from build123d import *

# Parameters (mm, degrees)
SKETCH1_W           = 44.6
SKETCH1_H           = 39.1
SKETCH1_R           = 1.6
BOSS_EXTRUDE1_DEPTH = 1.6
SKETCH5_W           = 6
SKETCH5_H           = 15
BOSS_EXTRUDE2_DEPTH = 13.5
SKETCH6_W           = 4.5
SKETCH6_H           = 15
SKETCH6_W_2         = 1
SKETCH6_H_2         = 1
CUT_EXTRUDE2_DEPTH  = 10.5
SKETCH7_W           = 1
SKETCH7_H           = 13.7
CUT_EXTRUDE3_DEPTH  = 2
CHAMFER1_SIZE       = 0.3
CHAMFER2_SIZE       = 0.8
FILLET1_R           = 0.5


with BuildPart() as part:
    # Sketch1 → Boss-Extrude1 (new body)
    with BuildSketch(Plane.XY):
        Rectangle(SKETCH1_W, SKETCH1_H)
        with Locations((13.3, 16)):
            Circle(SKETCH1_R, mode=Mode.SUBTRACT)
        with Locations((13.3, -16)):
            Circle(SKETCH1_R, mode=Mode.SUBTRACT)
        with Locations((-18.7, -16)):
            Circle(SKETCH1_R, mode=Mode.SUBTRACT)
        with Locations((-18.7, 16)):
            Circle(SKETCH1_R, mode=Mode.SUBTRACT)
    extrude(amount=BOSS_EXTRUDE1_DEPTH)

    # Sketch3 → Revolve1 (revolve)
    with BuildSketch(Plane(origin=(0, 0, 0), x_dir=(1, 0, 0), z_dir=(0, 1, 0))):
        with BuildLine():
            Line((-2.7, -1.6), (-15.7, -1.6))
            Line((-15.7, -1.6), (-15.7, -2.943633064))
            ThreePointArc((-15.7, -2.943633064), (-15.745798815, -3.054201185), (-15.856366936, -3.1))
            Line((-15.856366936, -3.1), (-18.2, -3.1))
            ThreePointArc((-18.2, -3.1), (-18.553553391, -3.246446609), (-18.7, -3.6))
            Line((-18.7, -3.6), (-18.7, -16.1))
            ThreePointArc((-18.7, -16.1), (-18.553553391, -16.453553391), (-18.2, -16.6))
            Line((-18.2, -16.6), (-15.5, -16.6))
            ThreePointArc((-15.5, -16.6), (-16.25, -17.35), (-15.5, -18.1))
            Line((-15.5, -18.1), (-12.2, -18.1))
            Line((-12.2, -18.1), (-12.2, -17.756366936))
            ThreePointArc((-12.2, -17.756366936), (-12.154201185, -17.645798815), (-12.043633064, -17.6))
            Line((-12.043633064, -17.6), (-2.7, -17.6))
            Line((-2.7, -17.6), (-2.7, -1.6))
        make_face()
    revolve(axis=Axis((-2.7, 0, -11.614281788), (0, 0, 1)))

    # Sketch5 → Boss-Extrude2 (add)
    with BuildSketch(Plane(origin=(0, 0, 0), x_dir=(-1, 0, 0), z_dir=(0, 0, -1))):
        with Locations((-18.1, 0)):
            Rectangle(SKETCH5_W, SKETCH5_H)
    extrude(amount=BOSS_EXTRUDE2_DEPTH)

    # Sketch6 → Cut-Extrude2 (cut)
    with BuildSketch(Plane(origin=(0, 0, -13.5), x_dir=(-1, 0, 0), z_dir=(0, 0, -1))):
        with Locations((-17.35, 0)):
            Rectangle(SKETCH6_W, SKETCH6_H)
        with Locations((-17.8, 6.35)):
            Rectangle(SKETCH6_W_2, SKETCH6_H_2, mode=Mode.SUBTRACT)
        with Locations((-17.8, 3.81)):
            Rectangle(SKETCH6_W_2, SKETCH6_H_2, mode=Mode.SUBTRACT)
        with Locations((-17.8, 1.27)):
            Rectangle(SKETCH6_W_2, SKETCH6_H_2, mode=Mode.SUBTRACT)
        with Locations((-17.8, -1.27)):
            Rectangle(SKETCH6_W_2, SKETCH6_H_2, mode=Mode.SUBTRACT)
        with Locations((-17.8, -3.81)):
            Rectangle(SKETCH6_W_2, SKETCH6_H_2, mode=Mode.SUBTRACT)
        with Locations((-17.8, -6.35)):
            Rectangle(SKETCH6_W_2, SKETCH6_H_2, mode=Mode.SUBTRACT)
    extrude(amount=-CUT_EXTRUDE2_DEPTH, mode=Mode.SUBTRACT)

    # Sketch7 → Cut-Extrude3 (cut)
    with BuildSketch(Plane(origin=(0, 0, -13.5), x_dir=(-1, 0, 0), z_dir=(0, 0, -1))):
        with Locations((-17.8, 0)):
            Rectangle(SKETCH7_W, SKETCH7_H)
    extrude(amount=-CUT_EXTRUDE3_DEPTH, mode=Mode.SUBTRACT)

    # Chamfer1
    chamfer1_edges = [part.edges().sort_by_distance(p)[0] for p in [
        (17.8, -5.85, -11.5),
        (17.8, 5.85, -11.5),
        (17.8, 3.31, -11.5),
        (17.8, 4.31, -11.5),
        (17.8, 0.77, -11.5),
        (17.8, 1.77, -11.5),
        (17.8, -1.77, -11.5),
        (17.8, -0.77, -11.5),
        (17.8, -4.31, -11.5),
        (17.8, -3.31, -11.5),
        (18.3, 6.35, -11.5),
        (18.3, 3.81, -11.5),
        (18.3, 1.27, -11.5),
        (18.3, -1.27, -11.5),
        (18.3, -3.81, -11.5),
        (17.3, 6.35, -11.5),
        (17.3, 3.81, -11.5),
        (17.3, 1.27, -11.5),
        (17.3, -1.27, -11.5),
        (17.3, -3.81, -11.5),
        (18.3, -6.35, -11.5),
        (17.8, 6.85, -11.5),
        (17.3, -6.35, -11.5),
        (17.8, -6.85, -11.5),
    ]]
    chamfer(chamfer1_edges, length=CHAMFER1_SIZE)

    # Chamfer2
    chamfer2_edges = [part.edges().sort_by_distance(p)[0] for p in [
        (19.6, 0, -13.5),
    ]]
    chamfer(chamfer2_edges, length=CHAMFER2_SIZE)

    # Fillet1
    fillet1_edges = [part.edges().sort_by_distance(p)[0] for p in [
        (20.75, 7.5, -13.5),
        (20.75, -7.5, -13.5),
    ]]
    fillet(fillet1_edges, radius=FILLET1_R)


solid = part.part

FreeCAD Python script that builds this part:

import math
import FreeCAD as App
import Part
import Sketcher
from FreeCAD import Vector
Q = App.Units.Quantity


def edges_at(feature, points):
    """Names of the edges that pass closest to the given points."""
    edges = feature.Shape.Edges
    near = lambda p: min(range(len(edges)), key=lambda i: edges[i].distToShape(Part.Vertex(*p))[0])
    return sorted({f"Edge{near(p) + 1}" for p in points})

doc = App.newDocument("Part")
body = doc.addObject("PartDesign::Body", "Body")

sketch1 = body.newObject("Sketcher::SketchObject", "Sketch")
sketch1.AttachmentSupport = (doc.getObject("XY_Plane"), [""])
sketch1.MapMode = "FlatFace"
sketch1.addGeometry([
    Part.LineSegment(Vector(-22.3, 19.6, 0), Vector(-22.3, -19.6, 0)),
    Part.LineSegment(Vector(-22.3, -19.6, 0), Vector(22.3, -19.6, 0)),
    Part.LineSegment(Vector(22.3, -19.6, 0), Vector(22.3, 19.6, 0)),
    Part.LineSegment(Vector(22.3, 19.6, 0), Vector(-22.3, 19.6, 0)),
    Part.Circle(Vector(-18.7, -16, 0), Vector(0, 0, 1), 1.6),
    Part.Circle(Vector(13.3, -16, 0), Vector(0, 0, 1), 1.6),
    Part.Circle(Vector(-18.7, 16, 0), Vector(0, 0, 1), 1.6),
    Part.Circle(Vector(13.3, 16, 0), Vector(0, 0, 1), 1.6),
], False)
sketch1.addConstraint([
    Sketcher.Constraint("Coincident", 0, 2, 1, 1),
    Sketcher.Constraint("Coincident", 1, 2, 2, 1),
    Sketcher.Constraint("Coincident", 2, 2, 3, 1),
    Sketcher.Constraint("Coincident", 3, 2, 0, 1),
    Sketcher.Constraint("Vertical", 0),
    Sketcher.Constraint("Horizontal", 1),
    Sketcher.Constraint("Vertical", 2),
    Sketcher.Constraint("Horizontal", 3),
    Sketcher.Constraint("Equal", 4, 5),
    Sketcher.Constraint("Equal", 5, 6),
    Sketcher.Constraint("Equal", 6, 7),
    Sketcher.Constraint("Symmetric", 0, 2, 2, 2, -1, 1),
    Sketcher.Constraint("Symmetric", 4, 3, 6, 3, -1),
    Sketcher.Constraint("Symmetric", 5, 3, 7, 3, -1),
    Sketcher.Constraint("Horizontal", 4, 3, 5, 3),
    Sketcher.Constraint("Diameter", 4, Q("3.2 mm")),
    Sketcher.Constraint("DistanceX", 1, 1, 1, 2, Q("44.6 mm")),
    Sketcher.Constraint("DistanceY", 0, 2, 0, 1, Q("39.1 mm")),
    Sketcher.Constraint("DistanceY", 4, 3, -1, 1, Q("16 mm")),
    Sketcher.Constraint("DistanceX", 4, 3, 5, 3, Q("32 mm")),
    Sketcher.Constraint("DistanceX", 5, 3, 1, 2, Q("9 mm")),
])
pad1 = body.newObject("PartDesign::Pad", "Pad")
pad1.Profile = sketch1
pad1.Length = 1.6

sketch2 = body.newObject("Sketcher::SketchObject", "Sketch001")
sketch2.AttachmentSupport = (doc.getObject("XZ_Plane"), [""])
sketch2.MapMode = "FlatFace"
sketch2.addGeometry([
    Part.LineSegment(Vector(-2.7, 1.6, 0), Vector(-15.7, 1.6, 0)),
    Part.LineSegment(Vector(-15.7, 1.6, 0), Vector(-15.7, 2.94, 0)),
    Part.ArcOfCircle(Part.Circle(Vector(-15.86, 2.94, 0), Vector(0, 0, 1), 0.16), math.radians(0), math.radians(90)),
    Part.LineSegment(Vector(-15.86, 3.1, 0), Vector(-18.2, 3.1, 0)),
    Part.ArcOfCircle(Part.Circle(Vector(-18.2, 3.6, 0), Vector(0, 0, 1), 0.5), math.radians(180), math.radians(270)),
    Part.LineSegment(Vector(-18.7, 3.6, 0), Vector(-18.7, 16.1, 0)),
    Part.ArcOfCircle(Part.Circle(Vector(-18.2, 16.1, 0), Vector(0, 0, 1), 0.5), math.radians(90), math.radians(180)),
    Part.LineSegment(Vector(-18.2, 16.6, 0), Vector(-15.5, 16.6, 0)),
    Part.ArcOfCircle(Part.Circle(Vector(-15.5, 17.35, 0), Vector(0, 0, 1), 0.75), math.radians(90), math.radians(270)),
    Part.LineSegment(Vector(-15.5, 18.1, 0), Vector(-12.2, 18.1, 0)),
    Part.LineSegment(Vector(-12.2, 18.1, 0), Vector(-12.2, 17.76, 0)),
    Part.ArcOfCircle(Part.Circle(Vector(-12.04, 17.76, 0), Vector(0, 0, 1), 0.16), math.radians(180), math.radians(270)),
    Part.LineSegment(Vector(-12.04, 17.6, 0), Vector(-2.7, 17.6, 0)),
    Part.LineSegment(Vector(-2.7, 17.6, 0), Vector(-2.7, 1.6, 0)),
], False)
sketch2.addGeometry(Part.LineSegment(Vector(-2.7, 1.6, 0), Vector(-2.7, 18.1, 0)), True)
sketch2.addConstraint([
    Sketcher.Constraint("Coincident", 0, 2, 1, 1),
    Sketcher.Constraint("Tangent", 1, 2, 2, 1),
    Sketcher.Constraint("Tangent", 2, 2, 3, 1),
    Sketcher.Constraint("Tangent", 3, 2, 4, 2),
    Sketcher.Constraint("Tangent", 4, 1, 5, 1),
    Sketcher.Constraint("Tangent", 5, 2, 6, 2),
    Sketcher.Constraint("Tangent", 6, 1, 7, 1),
    Sketcher.Constraint("Tangent", 7, 2, 8, 2),
    Sketcher.Constraint("Tangent", 8, 1, 9, 1),
    Sketcher.Constraint("Coincident", 9, 2, 10, 1),
    Sketcher.Constraint("Tangent", 10, 2, 11, 1),
    Sketcher.Constraint("Tangent", 11, 2, 12, 1),
    Sketcher.Constraint("Coincident", 12, 2, 13, 1),
    Sketcher.Constraint("Coincident", 13, 2, 0, 1),
    Sketcher.Constraint("Horizontal", 0),
    Sketcher.Constraint("Vertical", 1),
    Sketcher.Constraint("Horizontal", 3),
    Sketcher.Constraint("Vertical", 5),
    Sketcher.Constraint("Horizontal", 7),
    Sketcher.Constraint("Horizontal", 9),
    Sketcher.Constraint("Vertical", 10),
    Sketcher.Constraint("Horizontal", 12),
    Sketcher.Constraint("Vertical", 13),
    Sketcher.Constraint("Vertical", 14),
    Sketcher.Constraint("Coincident", 14, 1, 13, 2),
    Sketcher.Constraint("Equal", 4, 6),
    Sketcher.Constraint("Equal", 2, 11),
    Sketcher.Constraint("Horizontal", 9, 2, 14, 2),
    Sketcher.Constraint("Radius", 4, Q("0.5 mm")),
    Sketcher.Constraint("DistanceX", 0, 2, 0, 1, Q("13 mm")),
    Sketcher.Constraint("DistanceY", 13, 2, 13, 1, Q("16 mm")),
    Sketcher.Constraint("Radius", 8, Q("0.75 mm")),
    Sketcher.Constraint("DistanceX", 7, 1, 7, 2, Q("2.7 mm")),
    Sketcher.Constraint("DistanceX", 9, 1, 9, 2, Q("3.3 mm")),
    Sketcher.Constraint("DistanceY", 5, 1, 5, 2, Q("12.5 mm")),
    Sketcher.Constraint("DistanceY", 14, 1, 14, 2, Q("16.5 mm")),
    Sketcher.Constraint("DistanceX", 4, 1, 1, 2, Q("3 mm")),
    Sketcher.Constraint("DistanceX", 4, 3, -1, 1, Q("18.2 mm")),
    Sketcher.Constraint("DistanceY", -1, 1, 4, 3, Q("3.6 mm")),
    Sketcher.Constraint("Radius", 2, Q("0.156367 mm")),
])
revolution = body.newObject("PartDesign::Revolution", "Revolution")
revolution.Profile = sketch2
revolution.ReferenceAxis = (sketch2, ["Axis0"])
revolution.Angle = 360

sketch3 = body.newObject("Sketcher::SketchObject", "Sketch002")
sketch3.AttachmentSupport = (doc.getObject("XY_Plane"), [""])
sketch3.MapMode = "FlatFace"
sketch3.addGeometry([
    Part.LineSegment(Vector(21, 8, 0), Vector(21, -8, 0)),
    Part.LineSegment(Vector(21, -8, 0), Vector(15, -8, 0)),
    Part.LineSegment(Vector(15, -8, 0), Vector(15, 8, 0)),
    Part.LineSegment(Vector(15, 8, 0), Vector(21, 8, 0)),
], False)
sketch3.addConstraint([
    Sketcher.Constraint("Coincident", 0, 2, 1, 1),
    Sketcher.Constraint("Coincident", 1, 2, 2, 1),
    Sketcher.Constraint("Coincident", 2, 2, 3, 1),
    Sketcher.Constraint("Coincident", 3, 2, 0, 1),
    Sketcher.Constraint("Vertical", 0),
    Sketcher.Constraint("Horizontal", 1),
    Sketcher.Constraint("Vertical", 2),
    Sketcher.Constraint("Horizontal", 3),
    Sketcher.Constraint("DistanceX", 1, 2, 1, 1, Q("6 mm")),
    Sketcher.Constraint("DistanceY", 0, 2, 0, 1, Q("15 mm")),
    Sketcher.Constraint("DistanceX", -1, 1, 0, 2, Q("21.1 mm")),
    Sketcher.Constraint("DistanceY", 0, 2, -1, 1, Q("7.5 mm")),
])
pad2 = body.newObject("PartDesign::Pad", "Pad001")
pad2.Profile = sketch3
pad2.Length = 13.5
pad2.Reversed = True

sketch4 = body.newObject("Sketcher::SketchObject", "Sketch003")
sketch4.AttachmentSupport = (doc.getObject("XY_Plane"), [""])
sketch4.MapMode = "FlatFace"
sketch4.AttachmentOffset = App.Placement(Vector(0, 0, -13.5), App.Rotation())
sketch4.addGeometry([
    Part.LineSegment(Vector(19.6, 7.5, 0), Vector(19.6, -7.5, 0)),
    Part.LineSegment(Vector(19.6, -7.5, 0), Vector(15.1, -7.5, 0)),
    Part.LineSegment(Vector(15.1, -7.5, 0), Vector(15.1, 7.5, 0)),
    Part.LineSegment(Vector(15.1, 7.5, 0), Vector(19.6, 7.5, 0)),
    Part.LineSegment(Vector(17.3, -6.8, 0), Vector(18.3, -6.8, 0)),
    Part.LineSegment(Vector(18.3, -6.8, 0), Vector(18.3, -5.8, 0)),
    Part.LineSegment(Vector(18.3, -5.8, 0), Vector(17.3, -5.8, 0)),
    Part.LineSegment(Vector(17.3, -5.8, 0), Vector(17.3, -6.8, 0)),
    Part.LineSegment(Vector(17.3, -4.3, 0), Vector(18.3, -4.3, 0)),
    Part.LineSegment(Vector(18.3, -4.3, 0), Vector(18.3, -3.3, 0)),
    Part.LineSegment(Vector(18.3, -3.3, 0), Vector(17.3, -3.3, 0)),
    Part.LineSegment(Vector(17.3, -3.3, 0), Vector(17.3, -4.3, 0)),
    Part.LineSegment(Vector(17.3, -1.8, 0), Vector(18.3, -1.8, 0)),
    Part.LineSegment(Vector(18.3, -1.8, 0), Vector(18.3, -0.8, 0)),
    Part.LineSegment(Vector(18.3, -0.8, 0), Vector(17.3, -0.8, 0)),
    Part.LineSegment(Vector(17.3, -0.8, 0), Vector(17.3, -1.8, 0)),
    Part.LineSegment(Vector(17.3, 0.8, 0), Vector(18.3, 0.8, 0)),
    Part.LineSegment(Vector(18.3, 0.8, 0), Vector(18.3, 1.8, 0)),
    Part.LineSegment(Vector(18.3, 1.8, 0), Vector(17.3, 1.8, 0)),
    Part.LineSegment(Vector(17.3, 1.8, 0), Vector(17.3, 0.8, 0)),
    Part.LineSegment(Vector(17.3, 3.3, 0), Vector(18.3, 3.3, 0)),
    Part.LineSegment(Vector(18.3, 3.3, 0), Vector(18.3, 4.3, 0)),
    Part.LineSegment(Vector(18.3, 4.3, 0), Vector(17.3, 4.3, 0)),
    Part.LineSegment(Vector(17.3, 4.3, 0), Vector(17.3, 3.3, 0)),
    Part.LineSegment(Vector(17.3, 5.8, 0), Vector(18.3, 5.8, 0)),
    Part.LineSegment(Vector(18.3, 5.8, 0), Vector(18.3, 6.8, 0)),
    Part.LineSegment(Vector(18.3, 6.8, 0), Vector(17.3, 6.8, 0)),
    Part.LineSegment(Vector(17.3, 6.8, 0), Vector(17.3, 5.8, 0)),
], False)
sketch4.addConstraint([
    Sketcher.Constraint("Coincident", 0, 2, 1, 1),
    Sketcher.Constraint("Coincident", 1, 2, 2, 1),
    Sketcher.Constraint("Coincident", 2, 2, 3, 1),
    Sketcher.Constraint("Coincident", 3, 2, 0, 1),
    Sketcher.Constraint("Coincident", 4, 2, 5, 1),
    Sketcher.Constraint("Coincident", 5, 2, 6, 1),
    Sketcher.Constraint("Coincident", 6, 2, 7, 1),
    Sketcher.Constraint("Coincident", 7, 2, 4, 1),
    Sketcher.Constraint("Coincident", 8, 2, 9, 1),
    Sketcher.Constraint("Coincident", 9, 2, 10, 1),
    Sketcher.Constraint("Coincident", 10, 2, 11, 1),
    Sketcher.Constraint("Coincident", 11, 2, 8, 1),
    Sketcher.Constraint("Coincident", 12, 2, 13, 1),
    Sketcher.Constraint("Coincident", 13, 2, 14, 1),
    Sketcher.Constraint("Coincident", 14, 2, 15, 1),
    Sketcher.Constraint("Coincident", 15, 2, 12, 1),
    Sketcher.Constraint("Coincident", 16, 2, 17, 1),
    Sketcher.Constraint("Coincident", 17, 2, 18, 1),
    Sketcher.Constraint("Coincident", 18, 2, 19, 1),
    Sketcher.Constraint("Coincident", 19, 2, 16, 1),
    Sketcher.Constraint("Coincident", 20, 2, 21, 1),
    Sketcher.Constraint("Coincident", 21, 2, 22, 1),
    Sketcher.Constraint("Coincident", 22, 2, 23, 1),
    Sketcher.Constraint("Coincident", 23, 2, 20, 1),
    Sketcher.Constraint("Coincident", 24, 2, 25, 1),
    Sketcher.Constraint("Coincident", 25, 2, 26, 1),
    Sketcher.Constraint("Coincident", 26, 2, 27, 1),
    Sketcher.Constraint("Coincident", 27, 2, 24, 1),
    Sketcher.Constraint("Vertical", 0),
    Sketcher.Constraint("Horizontal", 1),
    Sketcher.Constraint("Vertical", 2),
    Sketcher.Constraint("Horizontal", 3),
    Sketcher.Constraint("Horizontal", 4),
    Sketcher.Constraint("Vertical", 5),
    Sketcher.Constraint("Horizontal", 6),
    Sketcher.Constraint("Vertical", 7),
    Sketcher.Constraint("Horizontal", 8),
    Sketcher.Constraint("Vertical", 9),
    Sketcher.Constraint("Horizontal", 10),
    Sketcher.Constraint("Vertical", 11),
    Sketcher.Constraint("Horizontal", 12),
    Sketcher.Constraint("Vertical", 13),
    Sketcher.Constraint("Horizontal", 14),
    Sketcher.Constraint("Vertical", 15),
    Sketcher.Constraint("Horizontal", 16),
    Sketcher.Constraint("Vertical", 17),
    Sketcher.Constraint("Horizontal", 18),
    Sketcher.Constraint("Vertical", 19),
    Sketcher.Constraint("Horizontal", 20),
    Sketcher.Constraint("Vertical", 21),
    Sketcher.Constraint("Horizontal", 22),
    Sketcher.Constraint("Vertical", 23),
    Sketcher.Constraint("Horizontal", 24),
    Sketcher.Constraint("Vertical", 25),
    Sketcher.Constraint("Horizontal", 26),
    Sketcher.Constraint("Vertical", 27),
    Sketcher.Constraint("Symmetric", 13, 2, 16, 2, -1),
    Sketcher.Constraint("Symmetric", 15, 2, 18, 2, -1),
    Sketcher.Constraint("Symmetric", 9, 2, 20, 2, -1),
    Sketcher.Constraint("Symmetric", 11, 2, 22, 2, -1),
    Sketcher.Constraint("Symmetric", 5, 2, 24, 2, -1),
    Sketcher.Constraint("Symmetric", 7, 2, 26, 2, -1),
    Sketcher.Constraint("Vertical", 5, 2, 8, 2),
    Sketcher.Constraint("Vertical", 7, 2, 10, 2),
    Sketcher.Constraint("Vertical", 9, 2, 12, 2),
    Sketcher.Constraint("Vertical", 11, 2, 14, 2),
    Sketcher.Constraint("Equal", 26, 5),
    Sketcher.Constraint("Equal", 7, 9),
    Sketcher.Constraint("Equal", 11, 13),
    Sketcher.Constraint("DistanceX", 4, 1, 4, 2, Q("1 mm")),
    Sketcher.Constraint("DistanceY", 0, 2, 0, 1, Q("15 mm")),
    Sketcher.Constraint("DistanceX", 1, 2, 1, 1, Q("4.5 mm")),
    Sketcher.Constraint("DistanceX", -1, 1, 0, 2, Q("19.6 mm")),
    Sketcher.Constraint("DistanceY", 0, 2, -1, 1, Q("7.5 mm")),
    Sketcher.Constraint("DistanceX", -1, 1, 4, 2, Q("18.3 mm")),
    Sketcher.Constraint("DistanceY", 4, 2, -1, 1, Q("6.85 mm")),
    Sketcher.Constraint("DistanceY", 8, 2, -1, 1, Q("4.31 mm")),
    Sketcher.Constraint("DistanceY", 12, 2, -1, 1, Q("1.77 mm")),
])
pocket1 = body.newObject("PartDesign::Pocket", "Pocket")
pocket1.Profile = sketch4
pocket1.Length = 10.5
pocket1.Reversed = True

sketch5 = body.newObject("Sketcher::SketchObject", "Sketch004")
sketch5.AttachmentSupport = (doc.getObject("XY_Plane"), [""])
sketch5.MapMode = "FlatFace"
sketch5.AttachmentOffset = App.Placement(Vector(0, 0, -13.5), App.Rotation())
sketch5.addGeometry([
    Part.LineSegment(Vector(18.3, 6.8, 0), Vector(18.3, -6.8, 0)),
    Part.LineSegment(Vector(18.3, -6.8, 0), Vector(17.3, -6.8, 0)),
    Part.LineSegment(Vector(17.3, -6.8, 0), Vector(17.3, 6.8, 0)),
    Part.LineSegment(Vector(17.3, 6.8, 0), Vector(18.3, 6.8, 0)),
], False)
sketch5.addConstraint([
    Sketcher.Constraint("Coincident", 0, 2, 1, 1),
    Sketcher.Constraint("Coincident", 1, 2, 2, 1),
    Sketcher.Constraint("Coincident", 2, 2, 3, 1),
    Sketcher.Constraint("Coincident", 3, 2, 0, 1),
    Sketcher.Constraint("Vertical", 0),
    Sketcher.Constraint("Horizontal", 1),
    Sketcher.Constraint("Vertical", 2),
    Sketcher.Constraint("Horizontal", 3),
    Sketcher.Constraint("DistanceX", 1, 2, 1, 1, Q("1 mm")),
    Sketcher.Constraint("DistanceY", 0, 2, 0, 1, Q("13.7 mm")),
    Sketcher.Constraint("DistanceX", -1, 1, 0, 2, Q("18.3 mm")),
    Sketcher.Constraint("DistanceY", 0, 2, -1, 1, Q("6.85 mm")),
])
pocket2 = body.newObject("PartDesign::Pocket", "Pocket001")
pocket2.Profile = sketch5
pocket2.Length = 2
pocket2.Reversed = True
doc.recompute()

chamfer = body.newObject("PartDesign::Chamfer", "Chamfer")
chamfer.Base = (pocket2, edges_at(pocket2, [
    (17.8, -5.85, -11.5),
    (17.8, 5.85, -11.5),
    (17.8, 3.31, -11.5),
    (17.8, 4.31, -11.5),
    (17.8, 0.77, -11.5),
    (17.8, 1.77, -11.5),
    (17.8, -1.77, -11.5),
    (17.8, -0.77, -11.5),
    (17.8, -4.31, -11.5),
    (17.8, -3.31, -11.5),
    (18.3, 6.35, -11.5),
    (18.3, 3.81, -11.5),
    (18.3, 1.27, -11.5),
    (18.3, -1.27, -11.5),
    (18.3, -3.81, -11.5),
    (17.3, 6.35, -11.5),
    (17.3, 3.81, -11.5),
    (17.3, 1.27, -11.5),
    (17.3, -1.27, -11.5),
    (17.3, -3.81, -11.5),
    (18.3, -6.35, -11.5),
    (17.8, 6.85, -11.5),
    (17.3, -6.35, -11.5),
    (17.8, -6.85, -11.5),
]))
chamfer.Size = 0.3
doc.recompute()

chamfer2 = body.newObject("PartDesign::Chamfer", "Chamfer001")
chamfer2.Base = (chamfer, edges_at(chamfer, [(19.6, 0, -13.5)]))
chamfer2.Size = 0.8
doc.recompute()

fillet = body.newObject("PartDesign::Fillet", "Fillet")
fillet.Base = (chamfer2, edges_at(chamfer2, [(20.75, 7.5, -13.5), (20.75, -7.5, -13.5)]))
fillet.Radius = 0.5

doc.recompute()
